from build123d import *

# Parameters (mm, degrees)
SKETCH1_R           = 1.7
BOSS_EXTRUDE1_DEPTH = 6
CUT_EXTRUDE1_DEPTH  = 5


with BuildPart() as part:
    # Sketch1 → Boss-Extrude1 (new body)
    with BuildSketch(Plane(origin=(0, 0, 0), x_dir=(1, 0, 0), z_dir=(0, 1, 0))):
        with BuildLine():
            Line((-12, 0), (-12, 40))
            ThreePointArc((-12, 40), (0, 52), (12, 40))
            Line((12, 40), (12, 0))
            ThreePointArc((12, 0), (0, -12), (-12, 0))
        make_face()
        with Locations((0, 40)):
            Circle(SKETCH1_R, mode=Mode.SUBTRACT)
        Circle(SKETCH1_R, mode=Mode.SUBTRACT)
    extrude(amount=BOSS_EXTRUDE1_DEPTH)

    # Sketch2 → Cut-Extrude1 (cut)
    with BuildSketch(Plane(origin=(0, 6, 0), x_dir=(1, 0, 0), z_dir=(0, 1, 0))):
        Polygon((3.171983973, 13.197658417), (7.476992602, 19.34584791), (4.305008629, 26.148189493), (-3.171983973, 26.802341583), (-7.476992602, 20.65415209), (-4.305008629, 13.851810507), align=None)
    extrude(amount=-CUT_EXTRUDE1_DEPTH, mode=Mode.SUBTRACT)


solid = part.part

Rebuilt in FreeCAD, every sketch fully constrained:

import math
import FreeCAD as App
import Part
import Sketcher
Q = App.Units.Quantity

doc = App.newDocument("Part")
params = doc.addObject("Spreadsheet::Sheet", "Params")
for row, (alias, value) in enumerate([
    ("sketch1_radius", "12 mm"),
    ("sketch1_diameter", "3.4 mm"),
    ("sketch1_height", "40 mm"),
    ("pad1_length", "6 mm"),
    ("pocket1_length", "5 mm"),
], start=1):
    params.set(f"A{row}", alias)
    params.set(f"B{row}", "=" + value)
    params.setAlias(f"B{row}", alias)

body = doc.addObject("PartDesign::Body", "Body")

# Sketch on XZ plane
sketch1 = doc.addObject("Sketcher::SketchObject", "Sketch")
body.addObject(sketch1)
sketch1.AttachmentSupport = (doc.XZ_Plane, [""])
sketch1.MapMode = "FlatFace"
sketch1.addGeometry([
    Part.LineSegment(App.Vector(-12, -40, 0), App.Vector(-12, 0, 0)),  # 0
    Part.ArcOfCircle(Part.Circle(App.Vector(0, 0, 0), App.Vector(0, 0, 1), 12), math.radians(0), math.radians(180)),  # 1
    Part.LineSegment(App.Vector(12, 0, 0), App.Vector(12, -40, 0)),  # 2
    Part.ArcOfCircle(Part.Circle(App.Vector(0, -40, 0), App.Vector(0, 0, 1), 12), math.radians(180), math.radians(360)),  # 3
    Part.Circle(App.Vector(0, 0, 0), App.Vector(0, 0, 1), 1.7),  # 4
    Part.Circle(App.Vector(0, -40, 0), App.Vector(0, 0, 1), 1.7),  # 5
], False)
sketch1.addConstraint([
    Sketcher.Constraint("Tangent", 0, 2, 1, 2),
    Sketcher.Constraint("Tangent", 1, 1, 2, 1),
    Sketcher.Constraint("Tangent", 2, 2, 3, 2),
    Sketcher.Constraint("Tangent", 3, 1, 0, 1),
    Sketcher.Constraint("Vertical", 0),
    Sketcher.Constraint("Vertical", 2),
    Sketcher.Constraint("Coincident", 1, 3, -1, 1),
    Sketcher.Constraint("Coincident", 4, 3, -1, 1),
    Sketcher.Constraint("Coincident", 5, 3, 3, 3),
    Sketcher.Constraint("Equal", 4, 5),
    Sketcher.Constraint("Radius", 1, Q("12 mm")),
    Sketcher.Constraint("Diameter", 4, Q("3.4 mm")),
    Sketcher.Constraint("DistanceY", 0, 1, 0, 2, Q("40 mm")),
])
sketch1.setExpression("Constraints[10]", "Params.sketch1_radius")
sketch1.setExpression("Constraints[11]", "Params.sketch1_diameter")
sketch1.setExpression("Constraints[12]", "Params.sketch1_height")
pad1 = doc.addObject("PartDesign::Pad", "Pad")
body.addObject(pad1)
pad1.Profile = sketch1
pad1.setExpression("Length", "Params.pad1_length")
pad1.Reversed = True

# Sketch on XZ plane
sketch2 = doc.addObject("Sketcher::SketchObject", "Sketch001")
body.addObject(sketch2)
sketch2.AttachmentSupport = (doc.XZ_Plane, [""])
sketch2.MapMode = "FlatFace"
sketch2.AttachmentOffset = App.Placement(App.Vector(0, 0, -6), App.Rotation())
sketch2.addGeometry([
    Part.LineSegment(App.Vector(3, -13, 0), App.Vector(7, -19, 0)),  # 0
    Part.LineSegment(App.Vector(7, -19, 0), App.Vector(4, -26, 0)),  # 1
    Part.LineSegment(App.Vector(4, -26, 0), App.Vector(-3, -27, 0)),  # 2
    Part.LineSegment(App.Vector(-3, -27, 0), App.Vector(-7, -21, 0)),  # 3
    Part.LineSegment(App.Vector(-7, -21, 0), App.Vector(-4, -14, 0)),  # 4
    Part.LineSegment(App.Vector(-4, -14, 0), App.Vector(3, -13, 0)),  # 5
], False)
sketch2.addConstraint([
    Sketcher.Constraint("Coincident", 0, 2, 1, 1),
    Sketcher.Constraint("Coincident", 1, 2, 2, 1),
    Sketcher.Constraint("Coincident", 2, 2, 3, 1),
    Sketcher.Constraint("Coincident", 3, 2, 4, 1),
    Sketcher.Constraint("Coincident", 4, 2, 5, 1),
    Sketcher.Constraint("Coincident", 5, 2, 0, 1),
    Sketcher.Constraint("Parallel", 0, 3),
    Sketcher.Constraint("Parallel", 1, 4),
    Sketcher.Constraint("Parallel", 2, 5),
    Sketcher.Constraint("Equal", 0, 1),
    Sketcher.Constraint("Equal", 1, 2),
    Sketcher.Constraint("Equal", 2, 3),
    Sketcher.Constraint("Angle", 0, Q("-55 deg")),
    Sketcher.Constraint("Angle", 1, Q("-115 deg")),
    Sketcher.Constraint("Angle", 2, Q("-175 deg")),
    Sketcher.Constraint("DistanceX", 3, 2, 1, 2, Q("11.782001 mm")),
    Sketcher.Constraint("DistanceX", -1, 1, 1, 2, Q("4.305009 mm")),
    Sketcher.Constraint("DistanceY", 1, 2, -1, 1, Q("26.148189 mm")),
])
pocket1 = doc.addObject("PartDesign::Pocket", "Pocket")
body.addObject(pocket1)
pocket1.Profile = sketch2
pocket1.setExpression("Length", "Params.pocket1_length")
pocket1.Reversed = True

doc.recompute()
